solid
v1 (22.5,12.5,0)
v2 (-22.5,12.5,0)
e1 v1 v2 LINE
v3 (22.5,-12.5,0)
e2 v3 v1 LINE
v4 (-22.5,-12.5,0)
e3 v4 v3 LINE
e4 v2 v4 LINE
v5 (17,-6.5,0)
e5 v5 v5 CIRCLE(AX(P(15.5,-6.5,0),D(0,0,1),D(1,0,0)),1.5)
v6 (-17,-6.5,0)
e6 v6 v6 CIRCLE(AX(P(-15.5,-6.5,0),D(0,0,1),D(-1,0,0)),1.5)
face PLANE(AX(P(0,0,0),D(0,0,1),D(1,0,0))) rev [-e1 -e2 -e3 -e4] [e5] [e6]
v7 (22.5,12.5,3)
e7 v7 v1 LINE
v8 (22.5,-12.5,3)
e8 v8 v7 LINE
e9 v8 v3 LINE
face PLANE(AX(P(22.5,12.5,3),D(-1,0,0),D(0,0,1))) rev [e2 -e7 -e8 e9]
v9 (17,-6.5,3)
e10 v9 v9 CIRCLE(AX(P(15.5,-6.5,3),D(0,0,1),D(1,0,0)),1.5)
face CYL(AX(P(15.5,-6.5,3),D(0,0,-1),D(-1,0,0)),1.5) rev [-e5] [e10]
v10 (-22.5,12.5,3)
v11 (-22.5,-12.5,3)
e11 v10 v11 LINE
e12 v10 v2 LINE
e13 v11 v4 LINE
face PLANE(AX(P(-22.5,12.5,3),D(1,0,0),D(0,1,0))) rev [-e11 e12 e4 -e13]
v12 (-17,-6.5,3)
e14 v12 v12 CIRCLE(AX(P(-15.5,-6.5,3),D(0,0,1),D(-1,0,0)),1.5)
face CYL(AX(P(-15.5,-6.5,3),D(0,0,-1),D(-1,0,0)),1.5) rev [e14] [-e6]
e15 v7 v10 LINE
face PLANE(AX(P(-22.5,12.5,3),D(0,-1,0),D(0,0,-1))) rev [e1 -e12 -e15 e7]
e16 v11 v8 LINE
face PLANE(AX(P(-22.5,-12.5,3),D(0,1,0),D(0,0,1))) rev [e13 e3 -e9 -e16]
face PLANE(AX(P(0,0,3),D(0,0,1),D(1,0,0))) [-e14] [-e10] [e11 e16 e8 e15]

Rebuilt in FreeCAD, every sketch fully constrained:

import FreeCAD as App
import Part
import Sketcher

V = App.Vector
Q = App.Units.Quantity

doc = App.newDocument("Part")
body = doc.addObject("PartDesign::Body", "Body")

sketch1 = body.newObject("Sketcher::SketchObject", "Sketch")
sketch1.AttachmentSupport = (doc.getObject("XY_Plane"), [""])
sketch1.MapMode = "FlatFace"
sketch1.addGeometry(Part.LineSegment(V(-22.5, 12.5, 0), V(-22.5, -12.5, 0)), False)
sketch1.addGeometry(Part.LineSegment(V(-22.5, -12.5, 0), V(22.5, -12.5, 0)), False)
sketch1.addGeometry(Part.LineSegment(V(22.5, -12.5, 0), V(22.5, 12.5, 0)), False)
sketch1.addGeometry(Part.LineSegment(V(22.5, 12.5, 0), V(-22.5, 12.5, 0)), False)
sketch1.addGeometry(Part.Circle(V(-15.5, -6.5, 0), V(0, 0, 1), 1.5), False)
sketch1.addGeometry(Part.Circle(V(15.5, -6.5, 0), V(0, 0, 1), 1.5), False)
sketch1.addConstraint(Sketcher.Constraint("Coincident", 0, 2, 1, 1))
sketch1.addConstraint(Sketcher.Constraint("Coincident", 1, 2, 2, 1))
sketch1.addConstraint(Sketcher.Constraint("Coincident", 2, 2, 3, 1))
sketch1.addConstraint(Sketcher.Constraint("Coincident", 3, 2, 0, 1))
sketch1.addConstraint(Sketcher.Constraint("Vertical", 0))
sketch1.addConstraint(Sketcher.Constraint("Horizontal", 1))
sketch1.addConstraint(Sketcher.Constraint("Vertical", 2))
sketch1.addConstraint(Sketcher.Constraint("Horizontal", 3))
sketch1.addConstraint(Sketcher.Constraint("Equal", 4, 5))
sketch1.addConstraint(Sketcher.Constraint("Symmetric", 0, 2, 2, 2, -1, 1))
sketch1.addConstraint(Sketcher.Constraint("Symmetric", 4, 3, 5, 3, -2))
sketch1.addConstraint(Sketcher.Constraint("Diameter", 4, Q("3 mm")))
sketch1.addConstraint(Sketcher.Constraint("DistanceX", 1, 1, 1, 2, Q("45 mm")))
sketch1.addConstraint(Sketcher.Constraint("DistanceY", 0, 2, 0, 1, Q("25 mm")))
sketch1.addConstraint(Sketcher.Constraint("DistanceX", 4, 3, 5, 3, Q("31 mm")))
sketch1.addConstraint(Sketcher.Constraint("DistanceY", 0, 2, 4, 3, Q("6 mm")))
pad1 = body.newObject("PartDesign::Pad", "Pad")
pad1.Profile = sketch1
pad1.Length = 3

doc.recompute()
